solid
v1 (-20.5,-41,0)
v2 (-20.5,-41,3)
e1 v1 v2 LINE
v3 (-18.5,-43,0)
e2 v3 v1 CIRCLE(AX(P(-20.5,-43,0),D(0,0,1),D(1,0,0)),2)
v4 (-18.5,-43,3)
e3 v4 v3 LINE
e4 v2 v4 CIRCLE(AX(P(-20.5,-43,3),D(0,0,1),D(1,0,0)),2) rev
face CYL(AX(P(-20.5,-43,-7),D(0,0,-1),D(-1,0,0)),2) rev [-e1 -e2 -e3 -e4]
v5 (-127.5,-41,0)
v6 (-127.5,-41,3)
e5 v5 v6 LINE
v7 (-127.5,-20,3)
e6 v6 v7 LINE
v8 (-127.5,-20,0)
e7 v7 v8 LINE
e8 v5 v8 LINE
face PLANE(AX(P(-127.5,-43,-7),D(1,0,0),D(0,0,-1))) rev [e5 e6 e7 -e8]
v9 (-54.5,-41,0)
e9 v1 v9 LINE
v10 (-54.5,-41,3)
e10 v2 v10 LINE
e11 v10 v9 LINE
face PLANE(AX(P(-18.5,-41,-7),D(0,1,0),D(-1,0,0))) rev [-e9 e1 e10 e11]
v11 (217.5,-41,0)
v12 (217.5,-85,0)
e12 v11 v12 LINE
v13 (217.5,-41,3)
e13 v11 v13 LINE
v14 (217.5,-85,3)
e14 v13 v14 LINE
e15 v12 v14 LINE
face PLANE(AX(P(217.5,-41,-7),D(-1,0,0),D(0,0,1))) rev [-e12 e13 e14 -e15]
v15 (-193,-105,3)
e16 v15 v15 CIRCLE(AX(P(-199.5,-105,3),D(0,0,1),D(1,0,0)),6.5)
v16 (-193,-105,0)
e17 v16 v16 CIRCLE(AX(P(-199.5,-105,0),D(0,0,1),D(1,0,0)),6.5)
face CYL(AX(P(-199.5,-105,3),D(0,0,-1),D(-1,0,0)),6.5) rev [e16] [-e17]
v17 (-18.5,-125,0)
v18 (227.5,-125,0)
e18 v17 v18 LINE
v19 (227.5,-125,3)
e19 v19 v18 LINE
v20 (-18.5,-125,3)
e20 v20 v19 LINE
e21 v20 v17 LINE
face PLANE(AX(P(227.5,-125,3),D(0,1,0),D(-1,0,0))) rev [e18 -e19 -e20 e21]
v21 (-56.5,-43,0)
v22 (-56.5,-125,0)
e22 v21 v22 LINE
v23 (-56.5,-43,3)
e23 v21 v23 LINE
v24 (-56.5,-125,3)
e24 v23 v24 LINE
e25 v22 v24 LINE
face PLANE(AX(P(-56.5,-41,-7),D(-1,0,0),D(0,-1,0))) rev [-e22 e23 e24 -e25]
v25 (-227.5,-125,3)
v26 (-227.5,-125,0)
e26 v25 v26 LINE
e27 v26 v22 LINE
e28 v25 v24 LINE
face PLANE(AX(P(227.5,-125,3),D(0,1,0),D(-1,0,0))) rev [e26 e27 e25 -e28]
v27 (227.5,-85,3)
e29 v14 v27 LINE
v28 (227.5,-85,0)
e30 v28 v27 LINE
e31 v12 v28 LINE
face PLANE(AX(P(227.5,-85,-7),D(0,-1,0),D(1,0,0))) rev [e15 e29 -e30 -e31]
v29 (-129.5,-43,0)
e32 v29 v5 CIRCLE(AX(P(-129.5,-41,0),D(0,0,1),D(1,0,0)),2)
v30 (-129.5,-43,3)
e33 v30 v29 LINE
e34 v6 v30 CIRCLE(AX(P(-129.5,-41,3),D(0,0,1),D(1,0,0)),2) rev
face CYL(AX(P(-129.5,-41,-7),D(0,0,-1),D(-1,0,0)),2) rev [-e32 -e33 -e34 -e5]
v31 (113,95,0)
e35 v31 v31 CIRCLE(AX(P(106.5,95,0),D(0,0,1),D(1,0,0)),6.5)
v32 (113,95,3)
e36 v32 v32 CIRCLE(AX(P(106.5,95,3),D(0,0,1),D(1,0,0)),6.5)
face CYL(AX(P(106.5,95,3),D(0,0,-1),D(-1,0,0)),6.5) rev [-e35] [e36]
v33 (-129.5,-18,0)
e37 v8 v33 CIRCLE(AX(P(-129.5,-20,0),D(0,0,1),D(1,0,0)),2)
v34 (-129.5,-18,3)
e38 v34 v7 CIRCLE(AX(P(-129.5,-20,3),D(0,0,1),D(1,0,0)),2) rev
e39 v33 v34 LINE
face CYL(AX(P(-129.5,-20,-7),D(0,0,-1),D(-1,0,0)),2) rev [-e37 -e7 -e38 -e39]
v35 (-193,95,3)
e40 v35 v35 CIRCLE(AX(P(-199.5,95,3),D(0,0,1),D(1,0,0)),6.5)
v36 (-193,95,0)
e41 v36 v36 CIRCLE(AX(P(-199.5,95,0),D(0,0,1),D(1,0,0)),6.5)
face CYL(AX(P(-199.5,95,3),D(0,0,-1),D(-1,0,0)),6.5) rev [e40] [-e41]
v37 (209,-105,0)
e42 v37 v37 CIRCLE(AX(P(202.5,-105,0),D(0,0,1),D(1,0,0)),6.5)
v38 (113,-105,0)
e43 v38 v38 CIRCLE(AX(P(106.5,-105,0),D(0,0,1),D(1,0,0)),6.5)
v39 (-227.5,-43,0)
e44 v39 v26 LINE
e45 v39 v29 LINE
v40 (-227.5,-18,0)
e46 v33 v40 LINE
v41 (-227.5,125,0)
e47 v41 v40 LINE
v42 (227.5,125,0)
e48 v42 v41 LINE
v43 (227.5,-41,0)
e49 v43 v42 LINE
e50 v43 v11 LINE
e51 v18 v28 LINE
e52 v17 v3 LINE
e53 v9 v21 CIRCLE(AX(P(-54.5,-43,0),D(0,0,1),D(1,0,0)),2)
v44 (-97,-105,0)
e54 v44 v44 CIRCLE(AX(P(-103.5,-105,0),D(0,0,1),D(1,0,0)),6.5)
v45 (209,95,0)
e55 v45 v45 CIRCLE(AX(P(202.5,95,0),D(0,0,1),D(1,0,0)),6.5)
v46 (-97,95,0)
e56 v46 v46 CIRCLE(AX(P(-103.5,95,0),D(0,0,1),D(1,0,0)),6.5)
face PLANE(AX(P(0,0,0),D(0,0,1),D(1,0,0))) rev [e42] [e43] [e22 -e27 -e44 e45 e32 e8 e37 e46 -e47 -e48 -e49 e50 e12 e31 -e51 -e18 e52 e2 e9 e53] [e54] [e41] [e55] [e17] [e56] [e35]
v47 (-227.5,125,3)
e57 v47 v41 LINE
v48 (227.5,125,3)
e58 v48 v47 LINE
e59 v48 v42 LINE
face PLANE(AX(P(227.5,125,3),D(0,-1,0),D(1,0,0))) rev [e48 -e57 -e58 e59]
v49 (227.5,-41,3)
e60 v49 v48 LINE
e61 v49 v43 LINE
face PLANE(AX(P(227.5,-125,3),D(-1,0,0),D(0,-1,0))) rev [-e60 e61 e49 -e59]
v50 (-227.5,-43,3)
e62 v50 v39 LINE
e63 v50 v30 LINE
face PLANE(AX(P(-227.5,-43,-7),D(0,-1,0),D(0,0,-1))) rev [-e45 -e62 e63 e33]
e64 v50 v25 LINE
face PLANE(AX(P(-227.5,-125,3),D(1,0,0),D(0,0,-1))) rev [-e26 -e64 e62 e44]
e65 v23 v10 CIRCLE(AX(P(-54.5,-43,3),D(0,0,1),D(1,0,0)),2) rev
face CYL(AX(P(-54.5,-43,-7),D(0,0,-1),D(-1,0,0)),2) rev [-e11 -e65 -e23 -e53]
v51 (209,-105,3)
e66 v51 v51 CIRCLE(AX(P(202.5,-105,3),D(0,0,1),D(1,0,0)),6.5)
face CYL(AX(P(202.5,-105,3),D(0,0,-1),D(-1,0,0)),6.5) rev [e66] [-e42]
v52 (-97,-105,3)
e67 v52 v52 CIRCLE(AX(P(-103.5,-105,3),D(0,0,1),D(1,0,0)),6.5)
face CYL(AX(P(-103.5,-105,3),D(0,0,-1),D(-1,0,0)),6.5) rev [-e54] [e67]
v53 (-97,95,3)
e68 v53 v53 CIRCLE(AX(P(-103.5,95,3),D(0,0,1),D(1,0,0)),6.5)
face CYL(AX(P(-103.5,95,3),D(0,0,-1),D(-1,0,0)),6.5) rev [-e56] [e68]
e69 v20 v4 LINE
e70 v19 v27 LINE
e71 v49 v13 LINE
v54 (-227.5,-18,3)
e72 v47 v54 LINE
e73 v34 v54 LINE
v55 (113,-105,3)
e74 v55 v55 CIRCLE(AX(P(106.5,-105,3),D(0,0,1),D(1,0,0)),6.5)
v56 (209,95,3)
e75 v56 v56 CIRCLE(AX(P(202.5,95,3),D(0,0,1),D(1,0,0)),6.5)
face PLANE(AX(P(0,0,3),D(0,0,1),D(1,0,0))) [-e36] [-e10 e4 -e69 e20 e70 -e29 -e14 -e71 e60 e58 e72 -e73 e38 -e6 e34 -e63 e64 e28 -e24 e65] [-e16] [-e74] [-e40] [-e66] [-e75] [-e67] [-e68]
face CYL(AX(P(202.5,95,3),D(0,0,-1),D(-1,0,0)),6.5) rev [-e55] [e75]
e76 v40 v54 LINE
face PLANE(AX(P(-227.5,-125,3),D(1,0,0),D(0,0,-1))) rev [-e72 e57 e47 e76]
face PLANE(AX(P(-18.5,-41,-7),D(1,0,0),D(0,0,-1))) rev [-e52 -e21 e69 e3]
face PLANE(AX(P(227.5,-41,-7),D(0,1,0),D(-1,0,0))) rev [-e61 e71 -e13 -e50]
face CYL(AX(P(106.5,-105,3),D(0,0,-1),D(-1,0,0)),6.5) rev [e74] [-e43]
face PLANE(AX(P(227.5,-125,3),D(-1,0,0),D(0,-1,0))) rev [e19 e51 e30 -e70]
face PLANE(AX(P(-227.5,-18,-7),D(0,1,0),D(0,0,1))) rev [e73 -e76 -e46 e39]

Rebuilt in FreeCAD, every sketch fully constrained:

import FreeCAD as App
import Part
import Sketcher
Q = App.Units.Quantity


def edges_at(feature, points):
    """Names of the edges that pass closest to the given points."""
    edges = feature.Shape.Edges
    near = lambda p: min(range(len(edges)), key=lambda i: edges[i].distToShape(Part.Vertex(*p))[0])
    return sorted({f"Edge{near(p) + 1}" for p in points})

doc = App.newDocument("Part")
params = doc.addObject("Spreadsheet::Sheet", "Params")
for row, (alias, value) in enumerate([
    ("sketch1_diameter", "13 mm"),
    ("sketch1_width", "455 mm"),
    ("sketch1_height", "250 mm"),
    ("pad1_length", "3 mm"),
    ("sketch2_width", "100 mm"),
    ("sketch2_width2", "38 mm"),
    ("sketch2_width3", "10 mm"),
    ("sketch2_height", "25 mm"),
    ("sketch2_height2", "84 mm"),
    ("pocket1_length", "10 mm"),
    ("fillet_radius", "2 mm"),
], start=1):
    params.set(f"A{row}", alias)
    params.set(f"B{row}", "=" + value)
    params.setAlias(f"B{row}", alias)

body = doc.addObject("PartDesign::Body", "Body")

# Sketch on XY plane
sketch1 = body.newObject("Sketcher::SketchObject", "Sketch")
sketch1.AttachmentSupport = (doc.getObject("XY_Plane"), [""])
sketch1.MapMode = "FlatFace"
sketch1.addGeometry([
    Part.LineSegment(App.Vector(-228, 125, 0), App.Vector(-228, -125, 0)),  # 0
    Part.LineSegment(App.Vector(-228, -125, 0), App.Vector(228, -125, 0)),  # 1
    Part.LineSegment(App.Vector(228, -125, 0), App.Vector(228, 125, 0)),  # 2
    Part.LineSegment(App.Vector(228, 125, 0), App.Vector(-228, 125, 0)),  # 3
    Part.Circle(App.Vector(-200, -105, 0), App.Vector(0, 0, 1), 6),  # 4
    Part.Circle(App.Vector(-104, -105, 0), App.Vector(0, 0, 1), 6),  # 5
    Part.Circle(App.Vector(106, -105, 0), App.Vector(0, 0, 1), 6),  # 6
    Part.Circle(App.Vector(202, -105, 0), App.Vector(0, 0, 1), 6),  # 7
    Part.Circle(App.Vector(-200, 95, 0), App.Vector(0, 0, 1), 6),  # 8
    Part.Circle(App.Vector(-104, 95, 0), App.Vector(0, 0, 1), 6),  # 9
    Part.Circle(App.Vector(106, 95, 0), App.Vector(0, 0, 1), 6),  # 10
    Part.Circle(App.Vector(202, 95, 0), App.Vector(0, 0, 1), 6),  # 11
], False)
sketch1.addConstraint([
    Sketcher.Constraint("Coincident", 0, 2, 1, 1),
    Sketcher.Constraint("Coincident", 1, 2, 2, 1),
    Sketcher.Constraint("Coincident", 2, 2, 3, 1),
    Sketcher.Constraint("Coincident", 3, 2, 0, 1),
    Sketcher.Constraint("Vertical", 0),
    Sketcher.Constraint("Horizontal", 1),
    Sketcher.Constraint("Vertical", 2),
    Sketcher.Constraint("Horizontal", 3),
    Sketcher.Constraint("Equal", 4, 5),
    Sketcher.Constraint("Equal", 5, 6),
    Sketcher.Constraint("Equal", 6, 7),
    Sketcher.Constraint("Equal", 7, 8),
    Sketcher.Constraint("Equal", 8, 9),
    Sketcher.Constraint("Equal", 9, 10),
    Sketcher.Constraint("Equal", 10, 11),
    Sketcher.Constraint("Symmetric", 0, 2, 2, 2, -1, 1),
    Sketcher.Constraint("Horizontal", 4, 3, 5, 3),
    Sketcher.Constraint("Horizontal", 5, 3, 6, 3),
    Sketcher.Constraint("Horizontal", 6, 3, 7, 3),
    Sketcher.Constraint("Horizontal", 8, 3, 9, 3),
    Sketcher.Constraint("Horizontal", 9, 3, 10, 3),
    Sketcher.Constraint("Horizontal", 10, 3, 11, 3),
    Sketcher.Constraint("Vertical", 4, 3, 8, 3),
    Sketcher.Constraint("Vertical", 5, 3, 9, 3),
    Sketcher.Constraint("Vertical", 6, 3, 10, 3),
    Sketcher.Constraint("Vertical", 7, 3, 11, 3),
    Sketcher.Constraint("Diameter", 4, Q("13 mm")),
    Sketcher.Constraint("DistanceX", 1, 1, 1, 2, Q("455 mm")),
    Sketcher.Constraint("DistanceY", 0, 2, 0, 1, Q("250 mm")),
    Sketcher.Constraint("DistanceY", 4, 3, -1, 1, Q("105 mm")),
    Sketcher.Constraint("DistanceY", -1, 1, 8, 3, Q("95 mm")),
    Sketcher.Constraint("DistanceX", 4, 3, 5, 3, Q("96 mm")),
    Sketcher.Constraint("DistanceX", 5, 3, 6, 3, Q("210 mm")),
    Sketcher.Constraint("DistanceX", 6, 3, 7, 3, Q("96 mm")),
    Sketcher.Constraint("DistanceX", 0, 2, 4, 3, Q("28 mm")),
])
sketch1.setExpression("Constraints[26]", "Params.sketch1_diameter")
sketch1.setExpression("Constraints[27]", "Params.sketch1_width")
sketch1.setExpression("Constraints[28]", "Params.sketch1_height")
pad1 = body.newObject("PartDesign::Pad", "Pad")
pad1.Profile = sketch1
pad1.setExpression("Length", "Params.pad1_length")

# Sketch on XY plane
sketch2 = body.newObject("Sketcher::SketchObject", "Sketch001")
sketch2.AttachmentSupport = (doc.getObject("XY_Plane"), [""])
sketch2.MapMode = "FlatFace"
sketch2.AttachmentOffset = App.Placement(App.Vector(0, 0, 3), App.Rotation())
sketch2.addGeometry([
    Part.LineSegment(App.Vector(-228, -18, 0), App.Vector(-228, -43, 0)),  # 0
    Part.LineSegment(App.Vector(-228, -43, 0), App.Vector(-128, -43, 0)),  # 1
    Part.LineSegment(App.Vector(-128, -43, 0), App.Vector(-128, -18, 0)),  # 2
    Part.LineSegment(App.Vector(-128, -18, 0), App.Vector(-228, -18, 0)),  # 3
    Part.LineSegment(App.Vector(-56, -41, 0), App.Vector(-56, -125, 0)),  # 4
    Part.LineSegment(App.Vector(-56, -125, 0), App.Vector(-18, -125, 0)),  # 5
    Part.LineSegment(App.Vector(-18, -125, 0), App.Vector(-18, -41, 0)),  # 6
    Part.LineSegment(App.Vector(-18, -41, 0), App.Vector(-56, -41, 0)),  # 7
    Part.LineSegment(App.Vector(218, -41, 0), App.Vector(218, -85, 0)),  # 8
    Part.LineSegment(App.Vector(218, -85, 0), App.Vector(228, -85, 0)),  # 9
    Part.LineSegment(App.Vector(228, -85, 0), App.Vector(228, -41, 0)),  # 10
    Part.LineSegment(App.Vector(228, -41, 0), App.Vector(218, -41, 0)),  # 11
], False)
sketch2.addConstraint([
    Sketcher.Constraint("Coincident", 0, 2, 1, 1),
    Sketcher.Constraint("Coincident", 1, 2, 2, 1),
    Sketcher.Constraint("Coincident", 2, 2, 3, 1),
    Sketcher.Constraint("Coincident", 3, 2, 0, 1),
    Sketcher.Constraint("Coincident", 4, 2, 5, 1),
    Sketcher.Constraint("Coincident", 5, 2, 6, 1),
    Sketcher.Constraint("Coincident", 6, 2, 7, 1),
    Sketcher.Constraint("Coincident", 7, 2, 4, 1),
    Sketcher.Constraint("Coincident", 8, 2, 9, 1),
    Sketcher.Constraint("Coincident", 9, 2, 10, 1),
    Sketcher.Constraint("Coincident", 10, 2, 11, 1),
    Sketcher.Constraint("Coincident", 11, 2, 8, 1),
    Sketcher.Constraint("Vertical", 0),
    Sketcher.Constraint("Horizontal", 1),
    Sketcher.Constraint("Vertical", 2),
    Sketcher.Constraint("Horizontal", 3),
    Sketcher.Constraint("Vertical", 4),
    Sketcher.Constraint("Horizontal", 5),
    Sketcher.Constraint("Vertical", 6),
    Sketcher.Constraint("Horizontal", 7),
    Sketcher.Constraint("Vertical", 8),
    Sketcher.Constraint("Horizontal", 9),
    Sketcher.Constraint("Vertical", 10),
    Sketcher.Constraint("Horizontal", 11),
    Sketcher.Constraint("Horizontal", 7, 2, 10, 2),
    Sketcher.Constraint("DistanceX", 1, 1, 1, 2, Q("100 mm")),
    Sketcher.Constraint("DistanceX", 5, 1, 5, 2, Q("38 mm")),
    Sketcher.Constraint("DistanceX", 9, 1, 9, 2, Q("10 mm")),
    Sketcher.Constraint("DistanceY", 0, 2, 0, 1, Q("25 mm")),
    Sketcher.Constraint("DistanceY", 4, 2, 4, 1, Q("84 mm")),
    Sketcher.Constraint("DistanceY", 8, 2, 8, 1, Q("44 mm")),
    Sketcher.Constraint("DistanceY", 0, 2, -1, 1, Q("43 mm")),
    Sketcher.Constraint("DistanceY", 4, 2, -1, 1, Q("125 mm")),
    Sketcher.Constraint("DistanceX", 1, 2, 4, 2, Q("71 mm")),
    Sketcher.Constraint("DistanceX", 5, 2, 8, 2, Q("236 mm")),
    Sketcher.Constraint("DistanceX", 0, 2, -1, 1, Q("227.5 mm")),
])
sketch2.setExpression("Constraints[25]", "Params.sketch2_width")
sketch2.setExpression("Constraints[26]", "Params.sketch2_width2")
sketch2.setExpression("Constraints[27]", "Params.sketch2_width3")
sketch2.setExpression("Constraints[28]", "Params.sketch2_height")
sketch2.setExpression("Constraints[29]", "Params.sketch2_height2")
pocket1 = body.newObject("PartDesign::Pocket", "Pocket")
pocket1.Profile = sketch2
pocket1.setExpression("Length", "Params.pocket1_length")
doc.recompute()

fillet = body.newObject("PartDesign::Fillet", "Fillet")
fillet.Base = (pocket1, edges_at(pocket1, [
    (-127.5, -18, 1.5),
    (-127.5, -43, 1.5),
    (-56.5, -41, 1.5),
    (-18.5, -41, 1.5),
]))
fillet.setExpression("Radius", "Params.fillet_radius")

doc.recompute()
